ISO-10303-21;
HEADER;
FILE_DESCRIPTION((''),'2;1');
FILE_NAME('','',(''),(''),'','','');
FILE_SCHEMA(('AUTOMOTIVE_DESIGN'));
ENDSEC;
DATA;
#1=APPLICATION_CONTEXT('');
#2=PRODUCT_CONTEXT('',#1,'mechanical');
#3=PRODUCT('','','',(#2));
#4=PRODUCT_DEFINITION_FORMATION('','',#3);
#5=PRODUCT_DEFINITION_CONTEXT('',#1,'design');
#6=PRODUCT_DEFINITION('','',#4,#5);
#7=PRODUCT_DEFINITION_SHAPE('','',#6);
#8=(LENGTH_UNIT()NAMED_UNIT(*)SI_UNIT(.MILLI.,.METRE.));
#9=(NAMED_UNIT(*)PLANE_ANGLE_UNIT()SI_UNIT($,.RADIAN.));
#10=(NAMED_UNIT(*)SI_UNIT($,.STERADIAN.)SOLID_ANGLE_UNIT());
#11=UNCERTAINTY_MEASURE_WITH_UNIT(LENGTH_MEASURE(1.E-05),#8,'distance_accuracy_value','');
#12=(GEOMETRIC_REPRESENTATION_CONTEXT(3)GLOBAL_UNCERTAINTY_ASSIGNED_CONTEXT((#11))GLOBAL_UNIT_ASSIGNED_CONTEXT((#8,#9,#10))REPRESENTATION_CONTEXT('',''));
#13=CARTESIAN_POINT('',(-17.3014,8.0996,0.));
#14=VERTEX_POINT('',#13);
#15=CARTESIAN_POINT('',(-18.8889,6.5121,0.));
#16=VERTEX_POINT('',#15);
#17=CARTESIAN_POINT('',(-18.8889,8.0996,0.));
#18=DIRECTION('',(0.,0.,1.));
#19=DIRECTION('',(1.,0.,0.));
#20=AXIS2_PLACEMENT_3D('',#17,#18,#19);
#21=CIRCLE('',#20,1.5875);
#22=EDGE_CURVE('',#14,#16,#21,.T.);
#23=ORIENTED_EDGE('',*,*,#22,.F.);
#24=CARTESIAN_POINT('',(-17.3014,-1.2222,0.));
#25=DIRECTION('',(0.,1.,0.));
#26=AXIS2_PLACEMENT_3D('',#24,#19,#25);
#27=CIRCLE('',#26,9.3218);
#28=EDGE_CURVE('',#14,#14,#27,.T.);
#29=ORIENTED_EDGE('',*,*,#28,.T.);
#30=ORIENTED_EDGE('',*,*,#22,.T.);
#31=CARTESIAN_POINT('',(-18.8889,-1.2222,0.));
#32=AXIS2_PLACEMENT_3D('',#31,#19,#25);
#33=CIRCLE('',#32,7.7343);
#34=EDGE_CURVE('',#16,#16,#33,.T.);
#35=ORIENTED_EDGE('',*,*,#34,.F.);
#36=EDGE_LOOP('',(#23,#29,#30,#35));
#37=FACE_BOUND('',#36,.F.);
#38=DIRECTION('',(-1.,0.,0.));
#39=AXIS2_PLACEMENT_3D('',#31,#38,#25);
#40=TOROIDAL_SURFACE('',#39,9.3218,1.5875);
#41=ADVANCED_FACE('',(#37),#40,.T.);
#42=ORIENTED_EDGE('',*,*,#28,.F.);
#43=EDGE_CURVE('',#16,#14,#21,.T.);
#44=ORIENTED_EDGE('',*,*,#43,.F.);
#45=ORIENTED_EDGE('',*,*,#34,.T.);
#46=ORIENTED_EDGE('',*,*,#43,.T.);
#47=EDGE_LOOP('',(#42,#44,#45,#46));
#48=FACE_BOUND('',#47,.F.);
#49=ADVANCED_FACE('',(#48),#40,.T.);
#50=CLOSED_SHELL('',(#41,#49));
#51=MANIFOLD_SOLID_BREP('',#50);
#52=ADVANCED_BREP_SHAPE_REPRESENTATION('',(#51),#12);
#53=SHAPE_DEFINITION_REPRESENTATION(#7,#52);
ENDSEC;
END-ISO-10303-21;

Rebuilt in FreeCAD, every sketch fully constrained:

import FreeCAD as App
import Part
import Sketcher
from FreeCAD import Vector
Q = App.Units.Quantity

doc = App.newDocument("Part")
body = doc.addObject("PartDesign::Body", "Body")

# Sketch on XY plane
sketch1 = body.newObject("Sketcher::SketchObject", "Sketch")
sketch1.AttachmentSupport = (doc.getObject("XY_Plane"), [""])
sketch1.MapMode = "FlatFace"
sketch1.addGeometry(Part.Circle(Vector(-18.9, 8.1, 0), Vector(0, 0, 1), 1.6), False)
sketch1.addGeometry(Part.LineSegment(Vector(-18.9, -1.2, 0), Vector(-8.9, -1.2, 0)), True)  # axis
sketch1.addConstraint([
    Sketcher.Constraint("Horizontal", 1),
    Sketcher.Constraint("Vertical", 0, 3, 1, 1),
    Sketcher.Constraint("Diameter", 0, Q("0.125 in")),
    Sketcher.Constraint("DistanceX", 1, 1, 1, 2, Q("0.3937 in")),
    Sketcher.Constraint("DistanceY", 1, 1, 0, 3, Q("0.367 in")),
    Sketcher.Constraint("DistanceX", 0, 3, -1, 1, 18.889),
    Sketcher.Constraint("DistanceY", -1, 1, 0, 3, 8.0996),
])
revolution = body.newObject("PartDesign::Revolution", "Revolution")
revolution.Profile = sketch1
revolution.ReferenceAxis = (sketch1, ["Axis0"])
revolution.Angle = 360

doc.recompute()
